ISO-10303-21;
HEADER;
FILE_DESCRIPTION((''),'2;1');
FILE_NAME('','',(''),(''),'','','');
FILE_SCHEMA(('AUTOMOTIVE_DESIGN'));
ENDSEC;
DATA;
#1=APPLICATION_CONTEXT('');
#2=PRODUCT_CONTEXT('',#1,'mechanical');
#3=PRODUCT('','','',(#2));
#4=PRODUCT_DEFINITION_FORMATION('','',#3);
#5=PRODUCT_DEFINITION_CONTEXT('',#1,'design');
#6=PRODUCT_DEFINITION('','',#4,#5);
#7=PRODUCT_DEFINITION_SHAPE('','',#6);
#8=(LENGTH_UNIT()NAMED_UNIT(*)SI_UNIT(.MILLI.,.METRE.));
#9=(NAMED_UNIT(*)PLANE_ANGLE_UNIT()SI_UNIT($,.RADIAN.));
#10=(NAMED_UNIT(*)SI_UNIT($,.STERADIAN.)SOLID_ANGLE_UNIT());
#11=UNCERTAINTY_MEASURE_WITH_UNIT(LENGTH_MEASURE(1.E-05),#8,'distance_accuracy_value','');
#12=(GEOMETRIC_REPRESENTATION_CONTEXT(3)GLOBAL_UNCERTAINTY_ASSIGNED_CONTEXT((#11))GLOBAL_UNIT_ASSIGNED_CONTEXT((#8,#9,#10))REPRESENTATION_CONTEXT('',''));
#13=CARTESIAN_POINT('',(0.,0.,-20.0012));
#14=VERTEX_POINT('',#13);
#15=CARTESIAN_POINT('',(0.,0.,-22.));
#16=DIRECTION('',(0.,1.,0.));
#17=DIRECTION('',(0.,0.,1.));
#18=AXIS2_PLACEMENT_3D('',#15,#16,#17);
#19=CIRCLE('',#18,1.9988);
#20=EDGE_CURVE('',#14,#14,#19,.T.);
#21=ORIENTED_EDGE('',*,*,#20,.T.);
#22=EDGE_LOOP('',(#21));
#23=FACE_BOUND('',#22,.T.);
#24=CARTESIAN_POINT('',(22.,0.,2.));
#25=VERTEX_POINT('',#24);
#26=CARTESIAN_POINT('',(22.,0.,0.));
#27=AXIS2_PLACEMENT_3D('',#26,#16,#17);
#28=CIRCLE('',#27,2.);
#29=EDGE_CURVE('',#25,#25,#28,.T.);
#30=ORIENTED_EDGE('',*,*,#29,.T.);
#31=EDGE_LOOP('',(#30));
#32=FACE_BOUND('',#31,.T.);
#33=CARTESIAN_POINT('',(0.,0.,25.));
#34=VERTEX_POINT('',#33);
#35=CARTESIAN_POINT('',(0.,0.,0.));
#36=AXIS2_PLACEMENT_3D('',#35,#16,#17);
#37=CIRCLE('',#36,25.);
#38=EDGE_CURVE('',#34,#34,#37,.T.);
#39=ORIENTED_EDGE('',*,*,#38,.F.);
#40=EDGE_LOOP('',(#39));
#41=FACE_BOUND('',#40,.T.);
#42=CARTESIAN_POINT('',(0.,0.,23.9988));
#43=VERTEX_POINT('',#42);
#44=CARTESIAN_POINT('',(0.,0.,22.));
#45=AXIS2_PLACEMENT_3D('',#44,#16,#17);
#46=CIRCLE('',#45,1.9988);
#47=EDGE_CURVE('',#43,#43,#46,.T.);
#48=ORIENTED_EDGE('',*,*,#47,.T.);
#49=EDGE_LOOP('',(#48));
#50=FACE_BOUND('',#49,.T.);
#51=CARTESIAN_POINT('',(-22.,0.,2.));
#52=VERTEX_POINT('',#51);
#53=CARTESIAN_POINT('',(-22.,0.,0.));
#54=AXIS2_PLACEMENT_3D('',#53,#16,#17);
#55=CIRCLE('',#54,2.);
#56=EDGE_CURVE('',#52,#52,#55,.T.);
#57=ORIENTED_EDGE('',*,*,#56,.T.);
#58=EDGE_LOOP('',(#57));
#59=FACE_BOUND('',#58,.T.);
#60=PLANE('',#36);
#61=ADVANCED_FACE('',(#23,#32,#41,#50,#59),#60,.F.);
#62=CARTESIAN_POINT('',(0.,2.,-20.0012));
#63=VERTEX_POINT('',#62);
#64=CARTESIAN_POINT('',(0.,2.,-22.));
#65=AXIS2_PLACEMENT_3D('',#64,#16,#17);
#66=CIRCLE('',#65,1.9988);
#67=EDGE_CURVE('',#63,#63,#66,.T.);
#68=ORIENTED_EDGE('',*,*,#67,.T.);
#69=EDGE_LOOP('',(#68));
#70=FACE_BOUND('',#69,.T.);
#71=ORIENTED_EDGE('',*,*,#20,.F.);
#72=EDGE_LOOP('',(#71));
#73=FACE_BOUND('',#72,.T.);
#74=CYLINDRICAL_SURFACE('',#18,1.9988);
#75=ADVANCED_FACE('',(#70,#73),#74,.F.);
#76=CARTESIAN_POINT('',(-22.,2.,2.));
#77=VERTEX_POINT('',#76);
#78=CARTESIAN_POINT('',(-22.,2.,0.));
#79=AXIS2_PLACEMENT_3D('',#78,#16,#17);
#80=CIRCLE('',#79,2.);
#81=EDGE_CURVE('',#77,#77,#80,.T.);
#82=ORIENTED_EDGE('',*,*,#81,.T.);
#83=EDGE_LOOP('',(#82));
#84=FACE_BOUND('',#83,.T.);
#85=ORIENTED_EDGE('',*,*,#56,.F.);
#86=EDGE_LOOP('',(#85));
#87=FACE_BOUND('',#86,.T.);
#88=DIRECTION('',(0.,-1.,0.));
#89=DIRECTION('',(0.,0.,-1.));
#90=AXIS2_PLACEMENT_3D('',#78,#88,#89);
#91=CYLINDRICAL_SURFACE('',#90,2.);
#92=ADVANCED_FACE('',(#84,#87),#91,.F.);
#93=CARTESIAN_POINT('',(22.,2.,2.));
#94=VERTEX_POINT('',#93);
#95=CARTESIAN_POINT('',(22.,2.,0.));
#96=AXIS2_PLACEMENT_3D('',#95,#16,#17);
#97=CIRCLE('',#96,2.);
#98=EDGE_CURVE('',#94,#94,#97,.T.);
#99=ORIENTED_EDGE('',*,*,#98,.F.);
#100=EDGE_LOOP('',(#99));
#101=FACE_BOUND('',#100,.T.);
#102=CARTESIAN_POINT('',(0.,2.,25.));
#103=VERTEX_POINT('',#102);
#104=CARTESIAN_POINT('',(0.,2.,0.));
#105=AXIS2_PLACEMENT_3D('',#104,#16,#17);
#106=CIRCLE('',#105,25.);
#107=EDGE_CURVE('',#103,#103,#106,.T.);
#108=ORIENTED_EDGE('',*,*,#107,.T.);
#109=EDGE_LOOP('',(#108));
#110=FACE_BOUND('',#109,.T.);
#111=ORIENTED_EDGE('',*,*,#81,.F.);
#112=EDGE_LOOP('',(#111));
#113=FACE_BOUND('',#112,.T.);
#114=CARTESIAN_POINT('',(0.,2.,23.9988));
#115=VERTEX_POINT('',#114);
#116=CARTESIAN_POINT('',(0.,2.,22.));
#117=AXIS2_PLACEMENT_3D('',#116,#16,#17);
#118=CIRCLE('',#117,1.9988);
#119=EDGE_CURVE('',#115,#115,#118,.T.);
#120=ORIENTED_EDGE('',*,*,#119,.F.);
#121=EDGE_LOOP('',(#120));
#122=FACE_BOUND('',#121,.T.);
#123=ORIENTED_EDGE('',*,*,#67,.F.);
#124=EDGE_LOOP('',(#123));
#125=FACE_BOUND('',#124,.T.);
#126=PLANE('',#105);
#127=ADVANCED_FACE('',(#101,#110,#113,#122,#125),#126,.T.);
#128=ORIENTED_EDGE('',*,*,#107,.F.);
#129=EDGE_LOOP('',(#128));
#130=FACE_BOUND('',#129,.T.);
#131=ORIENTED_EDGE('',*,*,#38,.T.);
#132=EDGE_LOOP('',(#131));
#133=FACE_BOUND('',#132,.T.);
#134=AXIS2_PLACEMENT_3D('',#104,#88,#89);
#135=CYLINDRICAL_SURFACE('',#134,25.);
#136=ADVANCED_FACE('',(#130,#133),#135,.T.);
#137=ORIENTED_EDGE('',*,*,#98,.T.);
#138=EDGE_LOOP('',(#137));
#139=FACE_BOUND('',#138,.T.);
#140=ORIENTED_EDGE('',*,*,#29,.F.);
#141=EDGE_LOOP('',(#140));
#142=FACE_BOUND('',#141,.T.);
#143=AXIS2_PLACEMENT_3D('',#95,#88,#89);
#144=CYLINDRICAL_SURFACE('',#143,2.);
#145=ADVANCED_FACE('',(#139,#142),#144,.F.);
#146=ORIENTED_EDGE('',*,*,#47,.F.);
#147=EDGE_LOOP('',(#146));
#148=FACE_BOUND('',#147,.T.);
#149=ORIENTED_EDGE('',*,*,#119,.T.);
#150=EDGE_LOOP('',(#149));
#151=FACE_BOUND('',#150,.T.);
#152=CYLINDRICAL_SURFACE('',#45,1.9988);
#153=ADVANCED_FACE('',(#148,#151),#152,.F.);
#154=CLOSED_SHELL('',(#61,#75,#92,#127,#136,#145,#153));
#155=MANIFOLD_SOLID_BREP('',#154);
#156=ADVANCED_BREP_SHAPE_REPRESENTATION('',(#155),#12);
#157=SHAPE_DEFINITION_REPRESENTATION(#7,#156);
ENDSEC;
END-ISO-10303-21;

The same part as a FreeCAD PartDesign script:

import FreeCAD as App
import Part
import Sketcher
from FreeCAD import Vector

doc = App.newDocument("Part")
params = doc.addObject("Spreadsheet::Sheet", "Params")
for row, (alias, value) in enumerate([
    ("sketch1_diameter", "50 mm"),
    ("sketch1_diameter2", "4 mm"),
    ("pad1_length", "2 mm"),
    ("pocket1_length", "2 mm"),
], start=1):
    params.set(f"A{row}", alias)
    params.set(f"B{row}", "=" + value)
    params.setAlias(f"B{row}", alias)

body = doc.addObject("PartDesign::Body", "Body")

# Sketch on XZ plane
sketch1 = body.newObject("Sketcher::SketchObject", "Sketch")
sketch1.AttachmentSupport = (doc.getObject("XZ_Plane"), [""])
sketch1.MapMode = "FlatFace"
sketch1.addGeometry([
    Part.Circle(Vector(0, 0, 0), Vector(0, 0, 1), 25),
    Part.Circle(Vector(-22, 0, 0), Vector(0, 0, 1), 2),
    Part.Circle(Vector(22, 0, 0), Vector(0, 0, 1), 2),
], False)
sketch1.addConstraint([
    Sketcher.Constraint("Coincident", 0, 3, -1, 1),
    Sketcher.Constraint("Equal", 1, 2),
    Sketcher.Constraint("Symmetric", 1, 3, 2, 3, -1, 1),
    Sketcher.Constraint("PointOnObject", 1, 3, -1),
    Sketcher.Constraint("Diameter", 0, 50.0),
    Sketcher.Constraint("Diameter", 1, 4.0),
    Sketcher.Constraint("DistanceX", 1, 3, -1, 1, 22.0),
])
sketch1.setExpression("Constraints[4]", "Params.sketch1_diameter")
sketch1.setExpression("Constraints[5]", "Params.sketch1_diameter2")
pad1 = body.newObject("PartDesign::Pad", "Pad")
pad1.Profile = sketch1
pad1.setExpression("Length", "Params.pad1_length")
pad1.Reversed = True

# Sketch on XZ plane
sketch2 = body.newObject("Sketcher::SketchObject", "Sketch001")
sketch2.AttachmentSupport = (doc.getObject("XZ_Plane"), [""])
sketch2.MapMode = "FlatFace"
sketch2.AttachmentOffset = App.Placement(Vector(0, 0, -2), App.Rotation())
sketch2.addGeometry([
    Part.Circle(Vector(0, -22, 0), Vector(0, 0, 1), 1.9988),
    Part.Circle(Vector(0, 22, 0), Vector(0, 0, 1), 1.9988),
], False)
sketch2.addConstraint([
    Sketcher.Constraint("Equal", 0, 1),
    Sketcher.Constraint("Symmetric", 0, 3, 1, 3, -1, 1),
    Sketcher.Constraint("PointOnObject", 0, 3, -2),
    Sketcher.Constraint("DistanceY", 0, 3, -1, 1, 22.0),
    Sketcher.Constraint("Diameter", 0, 3.997601),
])
pocket1 = body.newObject("PartDesign::Pocket", "Pocket")
pocket1.Profile = sketch2
pocket1.setExpression("Length", "Params.pocket1_length")
pocket1.Reversed = True

doc.recompute()
